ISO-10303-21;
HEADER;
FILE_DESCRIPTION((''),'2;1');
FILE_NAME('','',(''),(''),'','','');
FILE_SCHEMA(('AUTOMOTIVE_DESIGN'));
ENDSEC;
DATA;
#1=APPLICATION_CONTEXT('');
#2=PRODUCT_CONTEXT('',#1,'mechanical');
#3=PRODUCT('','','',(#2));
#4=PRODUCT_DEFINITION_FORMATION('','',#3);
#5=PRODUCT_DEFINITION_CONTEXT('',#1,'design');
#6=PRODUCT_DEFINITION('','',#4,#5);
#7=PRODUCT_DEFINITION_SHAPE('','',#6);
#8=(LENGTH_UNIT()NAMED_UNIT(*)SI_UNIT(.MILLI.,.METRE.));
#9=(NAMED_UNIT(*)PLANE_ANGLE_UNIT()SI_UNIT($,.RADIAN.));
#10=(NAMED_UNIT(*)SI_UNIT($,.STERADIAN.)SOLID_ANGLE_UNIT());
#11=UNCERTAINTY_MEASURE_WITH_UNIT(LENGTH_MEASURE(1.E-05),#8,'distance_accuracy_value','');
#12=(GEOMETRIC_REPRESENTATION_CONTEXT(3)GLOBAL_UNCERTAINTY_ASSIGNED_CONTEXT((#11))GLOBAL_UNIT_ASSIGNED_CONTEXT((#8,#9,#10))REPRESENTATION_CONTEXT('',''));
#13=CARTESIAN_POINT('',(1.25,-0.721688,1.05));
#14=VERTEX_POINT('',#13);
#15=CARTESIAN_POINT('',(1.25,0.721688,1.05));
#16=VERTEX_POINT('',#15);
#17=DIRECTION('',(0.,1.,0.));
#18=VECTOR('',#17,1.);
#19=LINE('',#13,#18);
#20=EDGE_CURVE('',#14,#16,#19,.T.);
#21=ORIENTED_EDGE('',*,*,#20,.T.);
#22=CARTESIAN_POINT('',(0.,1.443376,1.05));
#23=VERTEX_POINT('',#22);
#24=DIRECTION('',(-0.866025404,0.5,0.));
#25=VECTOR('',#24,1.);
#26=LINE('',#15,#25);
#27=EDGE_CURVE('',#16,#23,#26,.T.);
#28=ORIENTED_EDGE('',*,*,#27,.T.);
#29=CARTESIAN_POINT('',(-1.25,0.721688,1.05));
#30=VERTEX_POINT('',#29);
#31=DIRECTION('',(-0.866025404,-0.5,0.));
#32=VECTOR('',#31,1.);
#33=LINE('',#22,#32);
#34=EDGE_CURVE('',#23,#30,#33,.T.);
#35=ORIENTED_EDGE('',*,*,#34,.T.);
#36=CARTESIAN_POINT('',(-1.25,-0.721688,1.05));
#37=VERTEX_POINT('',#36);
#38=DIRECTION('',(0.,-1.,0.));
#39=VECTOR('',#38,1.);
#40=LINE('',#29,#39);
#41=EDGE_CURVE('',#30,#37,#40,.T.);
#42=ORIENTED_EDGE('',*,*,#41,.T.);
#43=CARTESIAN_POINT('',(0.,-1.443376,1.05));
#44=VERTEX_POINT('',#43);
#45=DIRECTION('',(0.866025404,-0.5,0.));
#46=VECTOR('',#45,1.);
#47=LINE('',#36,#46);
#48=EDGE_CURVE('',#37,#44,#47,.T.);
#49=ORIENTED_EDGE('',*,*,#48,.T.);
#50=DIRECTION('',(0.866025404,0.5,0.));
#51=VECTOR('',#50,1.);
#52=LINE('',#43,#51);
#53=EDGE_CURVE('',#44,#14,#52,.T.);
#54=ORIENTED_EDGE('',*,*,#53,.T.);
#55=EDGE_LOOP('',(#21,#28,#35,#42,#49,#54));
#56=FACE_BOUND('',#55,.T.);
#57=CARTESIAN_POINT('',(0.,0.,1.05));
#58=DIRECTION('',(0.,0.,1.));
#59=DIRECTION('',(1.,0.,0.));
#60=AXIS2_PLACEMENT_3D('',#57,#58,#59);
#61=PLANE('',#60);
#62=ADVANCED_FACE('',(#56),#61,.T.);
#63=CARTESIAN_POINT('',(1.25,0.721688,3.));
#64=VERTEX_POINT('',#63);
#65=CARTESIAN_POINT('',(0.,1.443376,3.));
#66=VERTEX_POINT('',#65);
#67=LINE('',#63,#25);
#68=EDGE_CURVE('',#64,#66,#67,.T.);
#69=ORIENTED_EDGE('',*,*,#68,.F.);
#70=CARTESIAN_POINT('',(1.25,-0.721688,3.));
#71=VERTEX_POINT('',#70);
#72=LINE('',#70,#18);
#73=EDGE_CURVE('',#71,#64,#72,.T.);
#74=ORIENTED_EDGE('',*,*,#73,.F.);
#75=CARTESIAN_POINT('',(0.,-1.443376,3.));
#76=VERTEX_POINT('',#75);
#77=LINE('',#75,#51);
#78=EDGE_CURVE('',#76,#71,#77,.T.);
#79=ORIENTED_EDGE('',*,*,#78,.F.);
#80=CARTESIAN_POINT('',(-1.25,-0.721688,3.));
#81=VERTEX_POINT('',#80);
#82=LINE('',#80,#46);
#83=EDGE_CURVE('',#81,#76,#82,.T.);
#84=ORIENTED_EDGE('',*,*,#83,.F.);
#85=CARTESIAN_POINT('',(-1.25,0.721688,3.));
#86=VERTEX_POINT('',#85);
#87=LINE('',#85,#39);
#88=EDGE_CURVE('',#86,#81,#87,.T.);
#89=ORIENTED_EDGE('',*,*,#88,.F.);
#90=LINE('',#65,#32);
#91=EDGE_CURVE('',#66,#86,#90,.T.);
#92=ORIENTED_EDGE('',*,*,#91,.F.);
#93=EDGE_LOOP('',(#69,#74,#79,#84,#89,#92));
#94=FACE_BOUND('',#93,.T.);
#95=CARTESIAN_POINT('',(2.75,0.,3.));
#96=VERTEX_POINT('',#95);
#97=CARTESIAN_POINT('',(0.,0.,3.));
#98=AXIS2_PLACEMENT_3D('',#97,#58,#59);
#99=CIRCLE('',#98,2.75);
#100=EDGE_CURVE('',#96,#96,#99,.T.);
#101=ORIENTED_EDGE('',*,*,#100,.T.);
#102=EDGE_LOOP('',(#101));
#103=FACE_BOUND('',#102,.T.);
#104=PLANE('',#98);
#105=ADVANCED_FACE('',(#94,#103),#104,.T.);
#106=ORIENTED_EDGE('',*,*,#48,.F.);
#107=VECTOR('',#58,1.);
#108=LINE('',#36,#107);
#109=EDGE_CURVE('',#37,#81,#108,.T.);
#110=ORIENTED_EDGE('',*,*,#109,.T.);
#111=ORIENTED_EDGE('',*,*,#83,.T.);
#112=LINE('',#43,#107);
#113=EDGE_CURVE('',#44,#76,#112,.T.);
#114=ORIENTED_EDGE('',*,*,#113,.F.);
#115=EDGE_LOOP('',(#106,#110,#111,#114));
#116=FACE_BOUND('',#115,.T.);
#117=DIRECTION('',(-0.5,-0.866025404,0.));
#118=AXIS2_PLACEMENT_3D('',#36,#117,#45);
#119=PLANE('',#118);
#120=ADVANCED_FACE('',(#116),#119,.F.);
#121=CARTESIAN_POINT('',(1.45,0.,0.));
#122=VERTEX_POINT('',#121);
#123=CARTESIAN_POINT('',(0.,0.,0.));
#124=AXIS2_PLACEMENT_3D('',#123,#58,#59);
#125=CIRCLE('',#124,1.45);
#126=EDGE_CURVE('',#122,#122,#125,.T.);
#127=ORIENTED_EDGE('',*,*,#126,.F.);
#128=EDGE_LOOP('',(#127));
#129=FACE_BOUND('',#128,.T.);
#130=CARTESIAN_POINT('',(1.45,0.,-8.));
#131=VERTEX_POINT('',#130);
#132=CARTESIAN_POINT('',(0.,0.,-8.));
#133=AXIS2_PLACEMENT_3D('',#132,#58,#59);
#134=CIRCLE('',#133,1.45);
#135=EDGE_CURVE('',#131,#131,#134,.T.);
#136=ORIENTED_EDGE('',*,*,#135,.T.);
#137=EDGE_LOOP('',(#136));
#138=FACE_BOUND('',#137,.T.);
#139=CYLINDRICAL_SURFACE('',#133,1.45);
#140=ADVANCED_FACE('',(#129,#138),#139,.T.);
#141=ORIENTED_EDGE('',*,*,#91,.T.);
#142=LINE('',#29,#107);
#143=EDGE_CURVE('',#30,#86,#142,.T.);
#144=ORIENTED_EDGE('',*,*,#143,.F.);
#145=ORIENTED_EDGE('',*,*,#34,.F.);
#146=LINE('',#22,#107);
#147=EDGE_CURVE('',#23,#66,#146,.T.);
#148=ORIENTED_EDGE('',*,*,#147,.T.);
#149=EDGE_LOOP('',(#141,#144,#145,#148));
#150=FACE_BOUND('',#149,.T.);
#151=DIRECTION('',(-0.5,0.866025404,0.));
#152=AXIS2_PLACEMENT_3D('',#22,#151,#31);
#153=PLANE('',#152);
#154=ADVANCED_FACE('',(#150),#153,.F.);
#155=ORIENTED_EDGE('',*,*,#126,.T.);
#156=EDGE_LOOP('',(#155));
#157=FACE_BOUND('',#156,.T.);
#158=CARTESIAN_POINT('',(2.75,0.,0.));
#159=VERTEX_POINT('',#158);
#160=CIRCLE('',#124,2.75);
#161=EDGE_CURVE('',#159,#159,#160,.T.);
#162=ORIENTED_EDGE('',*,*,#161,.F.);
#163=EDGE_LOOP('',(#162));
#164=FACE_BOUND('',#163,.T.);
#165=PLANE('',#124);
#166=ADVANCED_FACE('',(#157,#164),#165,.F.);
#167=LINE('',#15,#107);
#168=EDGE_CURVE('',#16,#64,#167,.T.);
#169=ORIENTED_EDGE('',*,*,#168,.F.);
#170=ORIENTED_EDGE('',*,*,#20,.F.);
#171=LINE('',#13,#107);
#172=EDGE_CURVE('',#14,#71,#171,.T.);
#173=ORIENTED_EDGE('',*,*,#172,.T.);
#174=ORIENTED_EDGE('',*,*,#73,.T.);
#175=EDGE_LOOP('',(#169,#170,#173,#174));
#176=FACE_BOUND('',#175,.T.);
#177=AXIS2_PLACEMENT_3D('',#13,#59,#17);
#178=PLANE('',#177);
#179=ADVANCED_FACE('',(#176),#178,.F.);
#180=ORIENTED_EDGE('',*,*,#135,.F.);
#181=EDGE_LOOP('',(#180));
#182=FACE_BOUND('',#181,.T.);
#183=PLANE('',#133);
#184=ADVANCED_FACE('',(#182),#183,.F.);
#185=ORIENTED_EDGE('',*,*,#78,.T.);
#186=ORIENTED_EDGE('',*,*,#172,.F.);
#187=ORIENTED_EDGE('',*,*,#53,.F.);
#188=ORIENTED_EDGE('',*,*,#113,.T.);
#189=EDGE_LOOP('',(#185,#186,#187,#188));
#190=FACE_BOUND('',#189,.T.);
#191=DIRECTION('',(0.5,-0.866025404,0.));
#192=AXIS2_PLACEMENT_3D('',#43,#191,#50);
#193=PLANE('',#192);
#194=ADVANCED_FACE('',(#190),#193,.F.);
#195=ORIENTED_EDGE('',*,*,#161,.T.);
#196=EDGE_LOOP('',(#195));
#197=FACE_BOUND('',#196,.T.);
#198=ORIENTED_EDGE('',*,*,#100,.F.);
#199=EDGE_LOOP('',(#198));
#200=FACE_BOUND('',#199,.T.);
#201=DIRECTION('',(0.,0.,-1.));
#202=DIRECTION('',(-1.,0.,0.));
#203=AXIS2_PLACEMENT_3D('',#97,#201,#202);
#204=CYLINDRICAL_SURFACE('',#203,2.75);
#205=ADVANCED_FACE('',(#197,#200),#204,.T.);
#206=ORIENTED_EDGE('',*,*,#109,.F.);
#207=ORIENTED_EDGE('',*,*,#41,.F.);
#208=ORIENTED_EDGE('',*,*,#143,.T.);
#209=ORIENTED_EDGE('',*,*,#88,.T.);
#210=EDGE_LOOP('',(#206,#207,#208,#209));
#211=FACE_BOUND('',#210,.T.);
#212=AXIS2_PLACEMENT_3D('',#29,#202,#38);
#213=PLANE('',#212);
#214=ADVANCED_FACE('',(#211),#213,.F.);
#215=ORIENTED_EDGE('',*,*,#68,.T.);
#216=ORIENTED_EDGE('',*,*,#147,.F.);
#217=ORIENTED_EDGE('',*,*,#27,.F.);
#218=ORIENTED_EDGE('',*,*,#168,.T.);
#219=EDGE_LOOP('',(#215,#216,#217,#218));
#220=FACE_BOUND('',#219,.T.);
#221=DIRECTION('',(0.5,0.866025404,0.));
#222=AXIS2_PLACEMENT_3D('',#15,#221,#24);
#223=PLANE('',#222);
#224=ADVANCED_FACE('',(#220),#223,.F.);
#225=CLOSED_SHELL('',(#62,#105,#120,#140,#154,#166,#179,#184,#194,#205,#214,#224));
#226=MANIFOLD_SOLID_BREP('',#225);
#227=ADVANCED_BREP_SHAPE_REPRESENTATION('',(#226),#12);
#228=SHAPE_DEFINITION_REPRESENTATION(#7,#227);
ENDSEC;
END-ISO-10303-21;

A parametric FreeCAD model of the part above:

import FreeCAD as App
import Part
import Sketcher

V = App.Vector
Q = App.Units.Quantity


def add_polygon(sketch, points):
    """Adds a closed chain of lines whose ends are joined by coincident constraints."""
    first, n = sketch.GeometryCount, len(points)
    for a, b in zip(points, points[1:] + points[:1]):
        sketch.addGeometry(Part.LineSegment(App.Vector(*a, 0), App.Vector(*b, 0)), False)
    for i in range(n):
        sketch.addConstraint(Sketcher.Constraint("Coincident", first + i, 2, first + (i + 1) % n, 1))

doc = App.newDocument("Part")
body = doc.addObject("PartDesign::Body", "Body")

# Sketch on XY plane
sketch1 = body.newObject("Sketcher::SketchObject", "Sketch")
sketch1.AttachmentSupport = (doc.getObject("XY_Plane"), [""])
sketch1.MapMode = "FlatFace"
sketch1.addGeometry(Part.Circle(V(0, 0, 0), V(0, 0, 1), 1.4), False)
sketch1.addConstraint(Sketcher.Constraint("Coincident", 0, 3, -1, 1))
sketch1.addConstraint(Sketcher.Constraint("Diameter", 0, Q("2.9 mm")))
pad1 = body.newObject("PartDesign::Pad", "Pad")
pad1.Profile = sketch1
pad1.Length = 8
pad1.Reversed = True

# Sketch on XY plane
sketch2 = body.newObject("Sketcher::SketchObject", "Sketch001")
sketch2.AttachmentSupport = (doc.getObject("XY_Plane"), [""])
sketch2.MapMode = "FlatFace"
sketch2.addGeometry(Part.Circle(V(0, 0, 0), V(0, 0, 1), 2.8), False)
sketch2.addConstraint(Sketcher.Constraint("Coincident", 0, 3, -1, 1))
sketch2.addConstraint(Sketcher.Constraint("Diameter", 0, Q("5.5 mm")))
pad2 = body.newObject("PartDesign::Pad", "Pad001")
pad2.Profile = sketch2
pad2.Length = 3

# Sketch on XY plane
sketch3 = body.newObject("Sketcher::SketchObject", "Sketch002")
sketch3.AttachmentSupport = (doc.getObject("XY_Plane"), [""])
sketch3.MapMode = "FlatFace"
sketch3.AttachmentOffset = App.Placement(V(0, 0, 3), App.Rotation())
add_polygon(sketch3, [(1.2, 0.7), (0, 1.4), (-1.2, 0.7), (-1.2, -0.7), (0, -1.4), (1.2, -0.7)])  # lines 0-5
sketch3.addConstraint(Sketcher.Constraint("Vertical", 2))
sketch3.addConstraint(Sketcher.Constraint("Vertical", 5))
sketch3.addConstraint(Sketcher.Constraint("Symmetric", 0, 2, 3, 2, -1, 1))
sketch3.addConstraint(Sketcher.Constraint("Symmetric", 1, 2, 4, 2, -1, 1))
sketch3.addConstraint(Sketcher.Constraint("PointOnObject", 0, 2, -2))
sketch3.addConstraint(Sketcher.Constraint("Parallel", 0, 3))
sketch3.addConstraint(Sketcher.Constraint("Horizontal", 2, 2, 4, 2))
sketch3.addConstraint(Sketcher.Constraint("Angle", 0, Q("150 deg")))
sketch3.addConstraint(Sketcher.Constraint("DistanceX", 2, 2, 4, 2, Q("2.5 mm")))
sketch3.addConstraint(Sketcher.Constraint("DistanceY", 2, 2, 2, 1, Q("1.443376 mm")))
pocket1 = body.newObject("PartDesign::Pocket", "Pocket")
pocket1.Profile = sketch3
pocket1.Length = 1.95

doc.recompute()
